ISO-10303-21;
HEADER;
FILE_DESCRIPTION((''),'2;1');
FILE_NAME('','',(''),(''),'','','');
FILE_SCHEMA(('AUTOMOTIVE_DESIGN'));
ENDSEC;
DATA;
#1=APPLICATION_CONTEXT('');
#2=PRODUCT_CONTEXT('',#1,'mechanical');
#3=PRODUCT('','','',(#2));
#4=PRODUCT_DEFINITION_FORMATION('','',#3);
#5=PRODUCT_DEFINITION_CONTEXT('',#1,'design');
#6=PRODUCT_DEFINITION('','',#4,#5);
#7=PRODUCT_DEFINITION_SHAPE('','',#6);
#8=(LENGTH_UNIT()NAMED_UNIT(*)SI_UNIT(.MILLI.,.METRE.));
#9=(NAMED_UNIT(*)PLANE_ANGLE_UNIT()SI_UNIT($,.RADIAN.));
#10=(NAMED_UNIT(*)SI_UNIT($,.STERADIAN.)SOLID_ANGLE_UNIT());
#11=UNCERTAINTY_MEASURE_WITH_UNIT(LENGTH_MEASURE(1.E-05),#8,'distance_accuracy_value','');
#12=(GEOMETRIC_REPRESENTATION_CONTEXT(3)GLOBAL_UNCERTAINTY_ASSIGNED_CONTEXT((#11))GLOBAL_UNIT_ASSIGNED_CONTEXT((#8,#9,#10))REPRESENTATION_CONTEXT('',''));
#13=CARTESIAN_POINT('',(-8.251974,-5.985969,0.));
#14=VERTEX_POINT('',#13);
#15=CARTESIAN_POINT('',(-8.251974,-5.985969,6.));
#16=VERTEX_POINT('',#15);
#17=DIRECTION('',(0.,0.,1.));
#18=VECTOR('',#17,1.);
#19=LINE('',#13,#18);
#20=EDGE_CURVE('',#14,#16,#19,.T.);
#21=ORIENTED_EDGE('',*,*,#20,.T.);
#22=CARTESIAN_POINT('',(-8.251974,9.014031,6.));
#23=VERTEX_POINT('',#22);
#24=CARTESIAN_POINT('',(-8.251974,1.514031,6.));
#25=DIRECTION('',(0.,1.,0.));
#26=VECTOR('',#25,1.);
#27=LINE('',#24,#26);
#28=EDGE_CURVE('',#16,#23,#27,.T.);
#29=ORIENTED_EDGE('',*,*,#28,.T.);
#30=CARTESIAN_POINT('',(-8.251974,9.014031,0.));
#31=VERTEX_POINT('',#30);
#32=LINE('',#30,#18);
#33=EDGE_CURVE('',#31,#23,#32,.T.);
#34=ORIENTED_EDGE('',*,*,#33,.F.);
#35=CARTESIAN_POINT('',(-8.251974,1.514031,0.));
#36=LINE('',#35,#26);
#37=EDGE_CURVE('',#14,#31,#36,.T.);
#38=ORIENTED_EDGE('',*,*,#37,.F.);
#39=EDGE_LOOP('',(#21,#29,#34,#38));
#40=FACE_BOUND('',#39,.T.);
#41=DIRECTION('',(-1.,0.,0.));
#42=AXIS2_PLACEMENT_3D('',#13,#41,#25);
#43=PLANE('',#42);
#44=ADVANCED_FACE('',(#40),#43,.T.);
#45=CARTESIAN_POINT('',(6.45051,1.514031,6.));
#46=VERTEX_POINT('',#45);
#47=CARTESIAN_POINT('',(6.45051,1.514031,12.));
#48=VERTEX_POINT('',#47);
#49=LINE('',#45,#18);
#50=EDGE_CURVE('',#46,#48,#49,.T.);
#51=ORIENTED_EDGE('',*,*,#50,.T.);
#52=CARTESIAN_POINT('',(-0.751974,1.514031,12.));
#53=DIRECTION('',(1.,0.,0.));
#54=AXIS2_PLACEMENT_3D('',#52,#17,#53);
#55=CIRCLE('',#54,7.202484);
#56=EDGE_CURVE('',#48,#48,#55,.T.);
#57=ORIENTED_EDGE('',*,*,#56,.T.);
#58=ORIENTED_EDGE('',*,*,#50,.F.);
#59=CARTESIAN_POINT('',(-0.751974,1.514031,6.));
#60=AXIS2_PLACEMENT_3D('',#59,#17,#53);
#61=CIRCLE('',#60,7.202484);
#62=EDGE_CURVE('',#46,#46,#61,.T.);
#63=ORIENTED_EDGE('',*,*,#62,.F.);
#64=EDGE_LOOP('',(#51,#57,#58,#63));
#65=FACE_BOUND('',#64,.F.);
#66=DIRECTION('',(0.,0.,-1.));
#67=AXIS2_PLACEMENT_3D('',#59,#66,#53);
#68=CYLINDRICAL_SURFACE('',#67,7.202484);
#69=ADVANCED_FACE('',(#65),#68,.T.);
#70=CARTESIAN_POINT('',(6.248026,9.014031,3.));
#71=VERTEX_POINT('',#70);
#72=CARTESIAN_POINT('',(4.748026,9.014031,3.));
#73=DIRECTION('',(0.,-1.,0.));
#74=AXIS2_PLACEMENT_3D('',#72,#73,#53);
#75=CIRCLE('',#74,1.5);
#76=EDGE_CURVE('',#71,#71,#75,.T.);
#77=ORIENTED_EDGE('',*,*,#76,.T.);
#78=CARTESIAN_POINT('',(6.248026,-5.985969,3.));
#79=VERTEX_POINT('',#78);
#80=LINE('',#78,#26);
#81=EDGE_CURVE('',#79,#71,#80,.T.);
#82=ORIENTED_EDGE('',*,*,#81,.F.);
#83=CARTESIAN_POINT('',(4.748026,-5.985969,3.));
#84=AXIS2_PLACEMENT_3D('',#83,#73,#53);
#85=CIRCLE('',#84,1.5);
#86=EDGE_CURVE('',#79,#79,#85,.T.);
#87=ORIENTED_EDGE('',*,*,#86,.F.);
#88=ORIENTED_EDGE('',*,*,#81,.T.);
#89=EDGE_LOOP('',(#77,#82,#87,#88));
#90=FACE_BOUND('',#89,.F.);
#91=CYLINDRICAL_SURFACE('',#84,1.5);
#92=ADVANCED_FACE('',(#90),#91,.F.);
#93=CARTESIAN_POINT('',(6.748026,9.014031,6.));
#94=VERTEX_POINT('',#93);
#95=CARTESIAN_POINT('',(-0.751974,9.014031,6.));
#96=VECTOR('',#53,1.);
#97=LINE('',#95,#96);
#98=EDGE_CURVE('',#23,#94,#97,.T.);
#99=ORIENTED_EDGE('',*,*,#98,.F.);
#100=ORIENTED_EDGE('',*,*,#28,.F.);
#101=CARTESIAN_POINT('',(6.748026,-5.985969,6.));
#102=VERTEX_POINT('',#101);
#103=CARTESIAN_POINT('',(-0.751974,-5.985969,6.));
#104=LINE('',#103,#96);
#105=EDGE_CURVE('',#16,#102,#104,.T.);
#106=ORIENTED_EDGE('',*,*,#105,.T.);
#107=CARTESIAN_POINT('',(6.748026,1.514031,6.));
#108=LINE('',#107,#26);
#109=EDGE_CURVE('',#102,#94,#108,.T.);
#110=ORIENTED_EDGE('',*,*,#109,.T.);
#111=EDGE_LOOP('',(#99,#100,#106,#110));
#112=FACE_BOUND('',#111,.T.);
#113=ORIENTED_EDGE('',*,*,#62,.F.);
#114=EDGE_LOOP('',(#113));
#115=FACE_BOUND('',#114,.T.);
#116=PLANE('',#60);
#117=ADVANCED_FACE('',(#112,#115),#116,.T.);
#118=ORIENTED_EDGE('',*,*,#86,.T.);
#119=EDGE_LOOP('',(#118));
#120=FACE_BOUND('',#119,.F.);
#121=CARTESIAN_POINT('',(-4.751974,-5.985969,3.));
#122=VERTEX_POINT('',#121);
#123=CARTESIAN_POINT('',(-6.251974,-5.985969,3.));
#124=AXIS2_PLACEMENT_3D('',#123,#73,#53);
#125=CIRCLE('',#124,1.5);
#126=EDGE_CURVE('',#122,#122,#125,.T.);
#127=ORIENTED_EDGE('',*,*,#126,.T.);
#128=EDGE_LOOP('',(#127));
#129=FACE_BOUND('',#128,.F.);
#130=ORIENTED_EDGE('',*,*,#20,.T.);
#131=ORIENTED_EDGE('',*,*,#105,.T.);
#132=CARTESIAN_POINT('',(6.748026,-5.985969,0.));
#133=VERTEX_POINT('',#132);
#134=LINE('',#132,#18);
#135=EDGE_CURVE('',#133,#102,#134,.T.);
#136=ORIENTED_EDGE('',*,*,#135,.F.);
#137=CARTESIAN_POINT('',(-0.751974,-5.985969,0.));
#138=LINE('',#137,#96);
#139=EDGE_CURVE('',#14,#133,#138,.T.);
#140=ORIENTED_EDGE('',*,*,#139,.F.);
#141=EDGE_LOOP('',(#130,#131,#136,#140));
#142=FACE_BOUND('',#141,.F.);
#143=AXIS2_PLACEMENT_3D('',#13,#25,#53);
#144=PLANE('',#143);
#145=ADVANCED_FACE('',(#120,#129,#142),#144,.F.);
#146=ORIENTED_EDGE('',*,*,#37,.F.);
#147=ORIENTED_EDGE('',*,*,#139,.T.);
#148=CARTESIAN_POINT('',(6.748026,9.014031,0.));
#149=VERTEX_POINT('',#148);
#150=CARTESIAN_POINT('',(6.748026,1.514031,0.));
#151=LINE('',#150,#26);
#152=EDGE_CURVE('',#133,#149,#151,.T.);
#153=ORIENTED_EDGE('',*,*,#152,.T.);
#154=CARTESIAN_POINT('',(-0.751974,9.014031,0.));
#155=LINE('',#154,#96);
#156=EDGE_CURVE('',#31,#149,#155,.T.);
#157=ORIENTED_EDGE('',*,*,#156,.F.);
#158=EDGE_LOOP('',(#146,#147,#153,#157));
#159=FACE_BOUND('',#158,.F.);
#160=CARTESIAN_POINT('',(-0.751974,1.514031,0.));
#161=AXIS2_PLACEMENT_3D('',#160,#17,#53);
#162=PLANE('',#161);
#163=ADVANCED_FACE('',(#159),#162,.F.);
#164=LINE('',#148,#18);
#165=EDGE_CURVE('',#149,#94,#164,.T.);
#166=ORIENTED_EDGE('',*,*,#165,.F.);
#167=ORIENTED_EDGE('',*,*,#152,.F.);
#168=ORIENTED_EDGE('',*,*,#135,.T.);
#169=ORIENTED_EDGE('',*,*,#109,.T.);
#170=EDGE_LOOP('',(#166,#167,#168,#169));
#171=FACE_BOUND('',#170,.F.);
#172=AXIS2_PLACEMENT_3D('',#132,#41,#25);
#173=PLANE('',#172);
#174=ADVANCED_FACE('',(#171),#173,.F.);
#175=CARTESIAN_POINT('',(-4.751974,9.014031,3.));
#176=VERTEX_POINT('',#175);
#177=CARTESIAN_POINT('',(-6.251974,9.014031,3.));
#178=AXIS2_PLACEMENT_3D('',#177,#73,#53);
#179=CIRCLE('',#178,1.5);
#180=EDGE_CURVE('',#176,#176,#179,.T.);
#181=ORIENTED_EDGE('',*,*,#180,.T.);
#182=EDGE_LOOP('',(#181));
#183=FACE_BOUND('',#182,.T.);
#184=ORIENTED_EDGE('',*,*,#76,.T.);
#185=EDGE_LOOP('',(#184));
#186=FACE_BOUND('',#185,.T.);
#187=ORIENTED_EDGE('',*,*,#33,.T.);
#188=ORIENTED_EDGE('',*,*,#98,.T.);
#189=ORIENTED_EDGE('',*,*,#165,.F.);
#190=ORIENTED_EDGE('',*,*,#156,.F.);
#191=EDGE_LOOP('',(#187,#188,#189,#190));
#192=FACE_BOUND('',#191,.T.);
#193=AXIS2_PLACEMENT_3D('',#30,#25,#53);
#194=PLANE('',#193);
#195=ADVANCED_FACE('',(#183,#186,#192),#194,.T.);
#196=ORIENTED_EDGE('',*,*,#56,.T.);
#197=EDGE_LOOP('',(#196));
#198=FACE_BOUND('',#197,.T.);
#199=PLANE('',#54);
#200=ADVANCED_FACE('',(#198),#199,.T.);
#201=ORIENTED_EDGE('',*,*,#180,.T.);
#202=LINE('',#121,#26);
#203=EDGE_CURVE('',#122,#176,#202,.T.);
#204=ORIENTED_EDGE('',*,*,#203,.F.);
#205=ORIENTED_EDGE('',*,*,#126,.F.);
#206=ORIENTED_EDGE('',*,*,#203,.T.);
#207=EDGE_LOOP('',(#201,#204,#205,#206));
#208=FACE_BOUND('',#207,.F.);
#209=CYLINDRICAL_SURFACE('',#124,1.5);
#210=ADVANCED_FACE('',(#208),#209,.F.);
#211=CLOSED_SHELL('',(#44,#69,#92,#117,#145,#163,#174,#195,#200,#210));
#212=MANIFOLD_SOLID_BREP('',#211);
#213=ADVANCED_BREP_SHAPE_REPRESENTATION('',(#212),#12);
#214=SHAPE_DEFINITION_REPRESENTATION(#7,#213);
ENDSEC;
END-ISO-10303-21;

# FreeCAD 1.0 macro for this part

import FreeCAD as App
import Part
import Sketcher
Q = App.Units.Quantity

doc = App.newDocument("Part")
body = doc.addObject("PartDesign::Body", "Body")

# Sketch on XY plane
sketch1 = doc.addObject("Sketcher::SketchObject", "Sketch")
body.addObject(sketch1)
sketch1.AttachmentSupport = (doc.XY_Plane, [""])
sketch1.MapMode = "FlatFace"
sketch1.addGeometry(Part.LineSegment(App.Vector(-8, 9, 0), App.Vector(-8, -6, 0)), False)
sketch1.addGeometry(Part.LineSegment(App.Vector(-8, -6, 0), App.Vector(7, -6, 0)), False)
sketch1.addGeometry(Part.LineSegment(App.Vector(7, -6, 0), App.Vector(7, 9, 0)), False)
sketch1.addGeometry(Part.LineSegment(App.Vector(7, 9, 0), App.Vector(-8, 9, 0)), False)
sketch1.addConstraint(Sketcher.Constraint("Coincident", 0, 2, 1, 1))
sketch1.addConstraint(Sketcher.Constraint("Coincident", 1, 2, 2, 1))
sketch1.addConstraint(Sketcher.Constraint("Coincident", 2, 2, 3, 1))
sketch1.addConstraint(Sketcher.Constraint("Coincident", 3, 2, 0, 1))
sketch1.addConstraint(Sketcher.Constraint("Vertical", 0))
sketch1.addConstraint(Sketcher.Constraint("Horizontal", 1))
sketch1.addConstraint(Sketcher.Constraint("Vertical", 2))
sketch1.addConstraint(Sketcher.Constraint("Horizontal", 3))
sketch1.addConstraint(Sketcher.Constraint("Equal", 3, 0))
sketch1.addConstraint(Sketcher.Constraint("DistanceX", 1, 1, 1, 2, Q("15 mm")))
sketch1.addConstraint(Sketcher.Constraint("DistanceY", 0, 2, -1, 1, Q("5.985969 mm")))
sketch1.addConstraint(Sketcher.Constraint("DistanceX", 0, 2, -1, 1, Q("8.251974 mm")))
pad1 = doc.addObject("PartDesign::Pad", "Pad")
body.addObject(pad1)
pad1.Profile = sketch1
pad1.Length = 6

# Sketch on XZ plane
sketch2 = doc.addObject("Sketcher::SketchObject", "Sketch001")
body.addObject(sketch2)
sketch2.AttachmentSupport = (doc.XZ_Plane, [""])
sketch2.MapMode = "FlatFace"
sketch2.AttachmentOffset = App.Placement(App.Vector(0, 0, 5.985969), App.Rotation())
sketch2.addGeometry(Part.Circle(App.Vector(-6.3, 3, 0), App.Vector(0, 0, 1), 1.5), False)
sketch2.addConstraint(Sketcher.Constraint("Diameter", 0, Q("3 mm")))
sketch2.addConstraint(Sketcher.Constraint("DistanceY", -1, 1, 0, 3, Q("3 mm")))
sketch2.addConstraint(Sketcher.Constraint("DistanceX", 0, 3, -1, 1, Q("6.251974 mm")))
pocket1 = doc.addObject("PartDesign::Pocket", "Pocket")
body.addObject(pocket1)
pocket1.Profile = sketch2
pocket1.Length = 15

# Sketch on XZ plane
sketch3 = doc.addObject("Sketcher::SketchObject", "Sketch002")
body.addObject(sketch3)
sketch3.AttachmentSupport = (doc.XZ_Plane, [""])
sketch3.MapMode = "FlatFace"
sketch3.AttachmentOffset = App.Placement(App.Vector(0, 0, 5.985969), App.Rotation())
sketch3.addGeometry(Part.Circle(App.Vector(4.7, 3, 0), App.Vector(0, 0, 1), 1.5), False)
sketch3.addConstraint(Sketcher.Constraint("Diameter", 0, Q("3 mm")))
sketch3.addConstraint(Sketcher.Constraint("DistanceY", -1, 1, 0, 3, Q("3 mm")))
sketch3.addConstraint(Sketcher.Constraint("DistanceX", -1, 1, 0, 3, Q("4.748026 mm")))
pocket2 = doc.addObject("PartDesign::Pocket", "Pocket001")
body.addObject(pocket2)
pocket2.Profile = sketch3
pocket2.Length = 15

# Sketch on XY plane
sketch4 = doc.addObject("Sketcher::SketchObject", "Sketch003")
body.addObject(sketch4)
sketch4.AttachmentSupport = (doc.XY_Plane, [""])
sketch4.MapMode = "FlatFace"
sketch4.AttachmentOffset = App.Placement(App.Vector(0, 0, 6), App.Rotation())
sketch4.addGeometry(Part.Circle(App.Vector(-1, 2, 0), App.Vector(0, 0, 1), 7), False)
sketch4.addConstraint(Sketcher.Constraint("Diameter", 0, Q("14.404968 mm")))
sketch4.addConstraint(Sketcher.Constraint("DistanceY", -1, 1, 0, 3, Q("1.514031 mm")))
sketch4.addConstraint(Sketcher.Constraint("DistanceX", 0, 3, -1, 1, Q("0.751974 mm")))
pad2 = doc.addObject("PartDesign::Pad", "Pad001")
body.addObject(pad2)
pad2.Profile = sketch4
pad2.Length = 6

doc.recompute()
